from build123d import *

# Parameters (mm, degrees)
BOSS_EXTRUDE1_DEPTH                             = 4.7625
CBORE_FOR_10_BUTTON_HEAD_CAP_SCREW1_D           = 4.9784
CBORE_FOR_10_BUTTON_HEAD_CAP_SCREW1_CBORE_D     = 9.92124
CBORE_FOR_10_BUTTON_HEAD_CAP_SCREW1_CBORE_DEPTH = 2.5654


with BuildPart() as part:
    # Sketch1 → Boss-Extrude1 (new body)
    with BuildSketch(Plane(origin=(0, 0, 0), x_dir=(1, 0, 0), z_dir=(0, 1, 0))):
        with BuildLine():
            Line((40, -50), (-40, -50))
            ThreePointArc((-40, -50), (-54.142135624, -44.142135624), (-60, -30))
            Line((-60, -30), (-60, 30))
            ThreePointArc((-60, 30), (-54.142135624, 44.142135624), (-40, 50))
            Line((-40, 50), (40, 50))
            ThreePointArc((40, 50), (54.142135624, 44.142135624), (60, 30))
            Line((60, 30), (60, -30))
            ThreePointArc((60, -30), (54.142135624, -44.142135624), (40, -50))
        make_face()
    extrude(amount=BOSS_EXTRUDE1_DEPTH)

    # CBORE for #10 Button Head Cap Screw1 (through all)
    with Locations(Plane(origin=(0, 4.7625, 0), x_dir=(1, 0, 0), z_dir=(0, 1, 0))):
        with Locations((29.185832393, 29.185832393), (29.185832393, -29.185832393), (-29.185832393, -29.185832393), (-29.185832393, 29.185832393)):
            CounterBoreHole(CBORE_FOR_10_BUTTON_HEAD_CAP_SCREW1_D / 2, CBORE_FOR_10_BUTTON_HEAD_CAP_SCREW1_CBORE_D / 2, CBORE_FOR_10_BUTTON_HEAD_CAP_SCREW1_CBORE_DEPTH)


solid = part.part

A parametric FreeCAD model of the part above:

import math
import FreeCAD as App
import Part
import Sketcher

V = App.Vector

doc = App.newDocument("Part")
body = doc.addObject("PartDesign::Body", "Body")

# Sketch on XZ plane
sketch1 = doc.addObject("Sketcher::SketchObject", "Sketch")
body.addObject(sketch1)
sketch1.AttachmentSupport = (doc.XZ_Plane, [""])
sketch1.MapMode = "FlatFace"
sketch1.addGeometry(Part.LineSegment(V(-40, 50, 0), V(40, 50, 0)), False)
sketch1.addGeometry(Part.ArcOfCircle(Part.Circle(V(40, 30, 0), V(0, 0, 1), 20), math.radians(0), math.radians(90)), False)
sketch1.addGeometry(Part.LineSegment(V(60, 30, 0), V(60, -30, 0)), False)
sketch1.addGeometry(Part.ArcOfCircle(Part.Circle(V(40, -30, 0), V(0, 0, 1), 20), math.radians(-90), math.radians(0)), False)
sketch1.addGeometry(Part.LineSegment(V(40, -50, 0), V(-40, -50, 0)), False)
sketch1.addGeometry(Part.ArcOfCircle(Part.Circle(V(-40, -30, 0), V(0, 0, 1), 20), math.radians(180), math.radians(270)), False)
sketch1.addGeometry(Part.LineSegment(V(-60, -30, 0), V(-60, 30, 0)), False)
sketch1.addGeometry(Part.ArcOfCircle(Part.Circle(V(-40, 30, 0), V(0, 0, 1), 20), math.radians(90), math.radians(180)), False)
sketch1.addConstraint(Sketcher.Constraint("Tangent", 0, 2, 1, 2))
sketch1.addConstraint(Sketcher.Constraint("Tangent", 1, 1, 2, 1))
sketch1.addConstraint(Sketcher.Constraint("Tangent", 2, 2, 3, 2))
sketch1.addConstraint(Sketcher.Constraint("Tangent", 3, 1, 4, 1))
sketch1.addConstraint(Sketcher.Constraint("Tangent", 4, 2, 5, 2))
sketch1.addConstraint(Sketcher.Constraint("Tangent", 5, 1, 6, 1))
sketch1.addConstraint(Sketcher.Constraint("Tangent", 6, 2, 7, 2))
sketch1.addConstraint(Sketcher.Constraint("Tangent", 7, 1, 0, 1))
sketch1.addConstraint(Sketcher.Constraint("Horizontal", 0))
sketch1.addConstraint(Sketcher.Constraint("Vertical", 2))
sketch1.addConstraint(Sketcher.Constraint("Horizontal", 4))
sketch1.addConstraint(Sketcher.Constraint("Vertical", 6))
sketch1.addConstraint(Sketcher.Constraint("Equal", 1, 3))
sketch1.addConstraint(Sketcher.Constraint("Equal", 3, 5))
sketch1.addConstraint(Sketcher.Constraint("Equal", 5, 7))
sketch1.addConstraint(Sketcher.Constraint("Symmetric", 1, 3, 5, 3, -1, 1))
sketch1.addConstraint(Sketcher.Constraint("Radius", 1, 20.0))
sketch1.addConstraint(Sketcher.Constraint("DistanceX", 0, 1, 0, 2, 80.0))
sketch1.addConstraint(Sketcher.Constraint("DistanceY", 2, 2, 2, 1, 60.0))
pad1 = doc.addObject("PartDesign::Pad", "Pad")
body.addObject(pad1)
pad1.Profile = sketch1
pad1.Length = 4.7625
pad1.Reversed = True

# Sketch on XZ plane
sketch2 = doc.addObject("Sketcher::SketchObject", "Sketch001")
body.addObject(sketch2)
sketch2.AttachmentSupport = (doc.XZ_Plane, [""])
sketch2.MapMode = "FlatFace"
sketch2.AttachmentOffset = App.Placement(V(0, 0, -4.7625), App.Rotation())
sketch2.addGeometry(Part.Circle(V(29.185832, -29.185832, 0), V(0, 0, 1), 2.4892), False)
sketch2.addGeometry(Part.Circle(V(29.185832, 29.185832, 0), V(0, 0, 1), 2.4892), False)
sketch2.addGeometry(Part.Circle(V(-29.185832, 29.185832, 0), V(0, 0, 1), 2.4892), False)
sketch2.addGeometry(Part.Circle(V(-29.185832, -29.185832, 0), V(0, 0, 1), 2.4892), False)
sketch2.addConstraint(Sketcher.Constraint("Equal", 0, 1))
sketch2.addConstraint(Sketcher.Constraint("Equal", 1, 2))
sketch2.addConstraint(Sketcher.Constraint("Equal", 2, 3))
sketch2.addConstraint(Sketcher.Constraint("Symmetric", 0, 3, 2, 3, -1, 1))
sketch2.addConstraint(Sketcher.Constraint("Symmetric", 1, 3, 3, 3, -1, 1))
sketch2.addConstraint(Sketcher.Constraint("Symmetric", 1, 3, 2, 3, -2))
sketch2.addConstraint(Sketcher.Constraint("Diameter", 0, 4.9784))
sketch2.addConstraint(Sketcher.Constraint("DistanceX", -1, 1, 0, 3, 29.185832))
sketch2.addConstraint(Sketcher.Constraint("DistanceY", 0, 3, -1, 1, 29.185832))
doc.recompute()
hole = doc.addObject("PartDesign::Hole", "Hole")
body.addObject(hole)
hole.Profile = sketch2
hole.ThreadType = "None"
hole.Diameter = 4.9784
hole.DepthType = "ThroughAll"
hole.HoleCutType = "Counterbore"
hole.HoleCutDiameter = 9.92124
hole.HoleCutDepth = 2.5654
hole.Reversed = True

doc.recompute()
